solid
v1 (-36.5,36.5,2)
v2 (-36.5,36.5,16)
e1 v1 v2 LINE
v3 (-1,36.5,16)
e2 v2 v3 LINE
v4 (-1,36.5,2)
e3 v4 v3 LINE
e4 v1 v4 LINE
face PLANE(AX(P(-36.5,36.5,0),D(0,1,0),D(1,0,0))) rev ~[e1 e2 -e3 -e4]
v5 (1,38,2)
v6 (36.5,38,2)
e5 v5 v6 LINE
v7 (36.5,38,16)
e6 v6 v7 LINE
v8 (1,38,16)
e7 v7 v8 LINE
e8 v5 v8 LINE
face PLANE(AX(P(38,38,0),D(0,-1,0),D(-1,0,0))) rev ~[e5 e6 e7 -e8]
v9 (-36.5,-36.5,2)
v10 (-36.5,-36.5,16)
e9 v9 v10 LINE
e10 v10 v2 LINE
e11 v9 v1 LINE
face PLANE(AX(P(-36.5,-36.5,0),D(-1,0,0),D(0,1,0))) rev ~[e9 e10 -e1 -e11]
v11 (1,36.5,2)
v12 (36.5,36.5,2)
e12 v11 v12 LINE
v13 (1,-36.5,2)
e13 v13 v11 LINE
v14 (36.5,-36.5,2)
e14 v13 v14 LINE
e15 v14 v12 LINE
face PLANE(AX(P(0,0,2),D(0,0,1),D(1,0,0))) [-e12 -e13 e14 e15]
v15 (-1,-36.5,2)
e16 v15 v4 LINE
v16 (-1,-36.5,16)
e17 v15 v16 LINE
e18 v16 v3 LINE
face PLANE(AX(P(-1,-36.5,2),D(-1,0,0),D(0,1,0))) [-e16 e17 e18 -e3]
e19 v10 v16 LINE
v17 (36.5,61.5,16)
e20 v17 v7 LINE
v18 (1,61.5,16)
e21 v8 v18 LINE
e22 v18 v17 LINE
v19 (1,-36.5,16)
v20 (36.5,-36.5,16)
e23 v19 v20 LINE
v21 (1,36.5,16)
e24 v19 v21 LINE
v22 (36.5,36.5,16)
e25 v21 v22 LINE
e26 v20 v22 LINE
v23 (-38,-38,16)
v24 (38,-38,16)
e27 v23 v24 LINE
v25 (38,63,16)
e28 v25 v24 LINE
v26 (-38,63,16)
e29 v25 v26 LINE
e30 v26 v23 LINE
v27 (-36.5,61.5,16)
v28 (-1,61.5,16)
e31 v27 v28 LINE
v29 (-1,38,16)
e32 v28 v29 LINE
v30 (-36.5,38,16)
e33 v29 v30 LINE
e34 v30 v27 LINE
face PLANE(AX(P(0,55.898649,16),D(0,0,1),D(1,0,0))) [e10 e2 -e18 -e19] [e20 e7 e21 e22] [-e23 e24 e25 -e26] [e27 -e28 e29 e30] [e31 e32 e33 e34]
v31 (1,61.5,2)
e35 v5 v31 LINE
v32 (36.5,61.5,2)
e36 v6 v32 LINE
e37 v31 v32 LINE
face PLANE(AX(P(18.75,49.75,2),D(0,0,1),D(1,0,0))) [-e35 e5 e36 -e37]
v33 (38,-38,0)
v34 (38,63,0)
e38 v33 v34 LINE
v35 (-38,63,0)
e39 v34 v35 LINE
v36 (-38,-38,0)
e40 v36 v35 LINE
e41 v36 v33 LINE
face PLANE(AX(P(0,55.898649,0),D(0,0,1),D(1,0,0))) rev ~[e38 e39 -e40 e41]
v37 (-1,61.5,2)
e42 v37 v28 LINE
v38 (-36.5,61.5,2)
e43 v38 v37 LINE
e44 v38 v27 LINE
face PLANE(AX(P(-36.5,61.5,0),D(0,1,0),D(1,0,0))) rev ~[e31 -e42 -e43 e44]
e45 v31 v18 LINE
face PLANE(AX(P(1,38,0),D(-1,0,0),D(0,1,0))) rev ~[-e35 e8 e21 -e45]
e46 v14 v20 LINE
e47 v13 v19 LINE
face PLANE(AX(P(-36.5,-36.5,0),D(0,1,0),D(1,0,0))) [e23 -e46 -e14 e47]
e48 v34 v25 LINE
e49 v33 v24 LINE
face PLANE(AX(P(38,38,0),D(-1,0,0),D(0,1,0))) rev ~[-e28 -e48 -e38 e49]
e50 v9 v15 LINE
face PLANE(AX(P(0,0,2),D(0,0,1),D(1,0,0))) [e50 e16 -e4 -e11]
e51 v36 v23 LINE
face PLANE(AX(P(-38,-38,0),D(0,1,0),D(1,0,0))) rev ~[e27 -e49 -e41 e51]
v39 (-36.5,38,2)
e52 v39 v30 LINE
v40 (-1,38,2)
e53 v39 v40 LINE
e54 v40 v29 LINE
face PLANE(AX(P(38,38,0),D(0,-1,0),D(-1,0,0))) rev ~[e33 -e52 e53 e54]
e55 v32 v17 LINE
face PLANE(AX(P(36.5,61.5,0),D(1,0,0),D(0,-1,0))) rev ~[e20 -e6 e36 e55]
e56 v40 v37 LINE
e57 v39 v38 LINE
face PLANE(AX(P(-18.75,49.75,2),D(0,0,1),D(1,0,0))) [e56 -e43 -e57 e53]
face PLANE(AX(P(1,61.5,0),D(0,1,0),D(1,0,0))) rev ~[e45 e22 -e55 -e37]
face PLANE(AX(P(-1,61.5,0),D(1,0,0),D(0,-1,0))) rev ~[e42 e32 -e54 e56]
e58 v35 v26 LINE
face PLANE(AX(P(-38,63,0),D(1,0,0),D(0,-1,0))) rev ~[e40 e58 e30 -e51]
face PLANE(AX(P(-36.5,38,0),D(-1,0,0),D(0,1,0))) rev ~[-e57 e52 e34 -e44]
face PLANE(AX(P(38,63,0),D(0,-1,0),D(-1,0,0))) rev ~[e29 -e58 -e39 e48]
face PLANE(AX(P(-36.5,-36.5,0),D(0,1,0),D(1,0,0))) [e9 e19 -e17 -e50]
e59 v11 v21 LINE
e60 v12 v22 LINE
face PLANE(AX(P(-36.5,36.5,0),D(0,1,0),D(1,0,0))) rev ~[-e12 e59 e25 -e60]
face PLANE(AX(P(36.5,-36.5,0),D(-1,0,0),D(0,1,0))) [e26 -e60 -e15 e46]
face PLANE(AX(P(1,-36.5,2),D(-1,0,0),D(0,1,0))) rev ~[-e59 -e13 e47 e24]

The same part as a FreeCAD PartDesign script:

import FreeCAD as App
import Part
import Sketcher

V = App.Vector
Q = App.Units.Quantity


def add_polygon(sketch, points):
    """Adds a closed chain of lines whose ends are joined by coincident constraints."""
    first, n = sketch.GeometryCount, len(points)
    for a, b in zip(points, points[1:] + points[:1]):
        sketch.addGeometry(Part.LineSegment(App.Vector(*a, 0), App.Vector(*b, 0)), False)
    for i in range(n):
        sketch.addConstraint(Sketcher.Constraint("Coincident", first + i, 2, first + (i + 1) % n, 1))

doc = App.newDocument("Part")
params = doc.addObject("Spreadsheet::Sheet", "Params")
for row, (alias, value) in enumerate([
    ("sketch1_width", "76 mm"),
    ("sketch1_width2", "73 mm"),
    ("pad1_length", "16 mm"),
    ("sketch2_width", "76 mm"),
    ("pad2_length", "2 mm"),
    ("sketch3_width", "2 mm"),
    ("sketch3_height", "73 mm"),
    ("pad3_length", "14 mm"),
    ("sketch4_width", "35.5 mm"),
    ("sketch4_height", "23.5 mm"),
    ("pad4_length", "2 mm"),
    ("sketch5_width", "35.5 mm"),
    ("sketch5_height", "23.5 mm"),
    ("pad5_length", "2 mm"),
    ("sketch6_width", "76 mm"),
    ("sketch6_width2", "2 mm"),
    ("sketch6_height", "25 mm"),
    ("sketch6_width3", "1.5 mm"),
    ("sketch6_height2", "23.5 mm"),
    ("pad6_length", "16 mm"),
], start=1):
    params.set(f"A{row}", alias)
    params.set(f"B{row}", "=" + value)
    params.setAlias(f"B{row}", alias)

body = doc.addObject("PartDesign::Body", "Body")

sketch1 = body.newObject("Sketcher::SketchObject", "Sketch")
sketch1.AttachmentSupport = (doc.getObject("XY_Plane"), [""])
sketch1.MapMode = "FlatFace"
add_polygon(sketch1, [(-38, 38), (-38, -38), (38, -38), (38, 38)])
add_polygon(sketch1, [(36, -36), (-36, -36), (-36, 36), (36, 36)])
sketch1.addConstraint([
    Sketcher.Constraint("Vertical", 0),
    Sketcher.Constraint("Horizontal", 1),
    Sketcher.Constraint("Vertical", 2),
    Sketcher.Constraint("Horizontal", 3),
    Sketcher.Constraint("Horizontal", 4),
    Sketcher.Constraint("Vertical", 5),
    Sketcher.Constraint("Horizontal", 6),
    Sketcher.Constraint("Vertical", 7),
    Sketcher.Constraint("Symmetric", 0, 2, 2, 2, -1, 1),
    Sketcher.Constraint("Symmetric", 4, 2, 6, 2, -1, 1),
    Sketcher.Constraint("Equal", 3, 0),
    Sketcher.Constraint("Equal", 6, 5),
    Sketcher.Constraint("DistanceX", 1, 1, 1, 2, Q("76 mm")),
    Sketcher.Constraint("DistanceX", 4, 2, 4, 1, Q("73 mm")),
])
sketch1.setExpression("Constraints[20]", "Params.sketch1_width")
sketch1.setExpression("Constraints[21]", "Params.sketch1_width2")
pad1 = body.newObject("PartDesign::Pad", "Pad")
pad1.Profile = sketch1
pad1.setExpression("Length", "Params.pad1_length")

sketch2 = body.newObject("Sketcher::SketchObject", "Sketch001")
sketch2.AttachmentSupport = (doc.getObject("XY_Plane"), [""])
sketch2.MapMode = "FlatFace"
add_polygon(sketch2, [(-38, -38), (38, -38), (38, 38), (-38, 38)])
sketch2.addConstraint([
    Sketcher.Constraint("Horizontal", 0),
    Sketcher.Constraint("Vertical", 1),
    Sketcher.Constraint("Horizontal", 2),
    Sketcher.Constraint("Vertical", 3),
    Sketcher.Constraint("Symmetric", 0, 2, 2, 2, -1, 1),
    Sketcher.Constraint("Equal", 2, 1),
    Sketcher.Constraint("DistanceX", 0, 1, 0, 2, Q("76 mm")),
])
sketch2.setExpression("Constraints[10]", "Params.sketch2_width")
pad2 = body.newObject("PartDesign::Pad", "Pad001")
pad2.Profile = sketch2
pad2.setExpression("Length", "Params.pad2_length")

sketch3 = body.newObject("Sketcher::SketchObject", "Sketch002")
sketch3.AttachmentSupport = (doc.getObject("XY_Plane"), [""])
sketch3.MapMode = "FlatFace"
sketch3.AttachmentOffset = App.Placement(V(0, 0, 2), App.Rotation())
add_polygon(sketch3, [(-1, 36.5), (-1, -36.5), (1, -36.5), (1, 36.5)])
sketch3.addConstraint([
    Sketcher.Constraint("Vertical", 0),
    Sketcher.Constraint("Horizontal", 1),
    Sketcher.Constraint("Vertical", 2),
    Sketcher.Constraint("Horizontal", 3),
    Sketcher.Constraint("Symmetric", 0, 2, 2, 2, -1, 1),
    Sketcher.Constraint("DistanceX", 1, 1, 1, 2, Q("2 mm")),
    Sketcher.Constraint("DistanceY", 0, 2, 0, 1, Q("73 mm")),
])
sketch3.setExpression("Constraints[9]", "Params.sketch3_width")
sketch3.setExpression("Constraints[10]", "Params.sketch3_height")
pad3 = body.newObject("PartDesign::Pad", "Pad002")
pad3.Profile = sketch3
pad3.setExpression("Length", "Params.pad3_length")

sketch4 = body.newObject("Sketcher::SketchObject", "Sketch003")
sketch4.AttachmentSupport = (doc.getObject("XY_Plane"), [""])
sketch4.MapMode = "FlatFace"
add_polygon(sketch4, [(-36, 62), (-36, 38), (-1, 38), (-1, 62)])
sketch4.addConstraint([
    Sketcher.Constraint("Vertical", 0),
    Sketcher.Constraint("Horizontal", 1),
    Sketcher.Constraint("Vertical", 2),
    Sketcher.Constraint("Horizontal", 3),
    Sketcher.Constraint("DistanceX", 1, 1, 1, 2, Q("35.5 mm")),
    Sketcher.Constraint("DistanceY", 0, 2, 0, 1, Q("23.5 mm")),
    Sketcher.Constraint("DistanceY", -1, 1, 0, 2, Q("38 mm")),
    Sketcher.Constraint("DistanceX", 1, 2, -1, 1, Q("1 mm")),
])
sketch4.setExpression("Constraints[8]", "Params.sketch4_width")
sketch4.setExpression("Constraints[9]", "Params.sketch4_height")
pad4 = body.newObject("PartDesign::Pad", "Pad003")
pad4.Profile = sketch4
pad4.setExpression("Length", "Params.pad4_length")

sketch5 = body.newObject("Sketcher::SketchObject", "Sketch004")
sketch5.AttachmentSupport = (doc.getObject("XY_Plane"), [""])
sketch5.MapMode = "FlatFace"
add_polygon(sketch5, [(1, 62), (1, 38), (36, 38), (36, 62)])
sketch5.addConstraint([
    Sketcher.Constraint("Vertical", 0),
    Sketcher.Constraint("Horizontal", 1),
    Sketcher.Constraint("Vertical", 2),
    Sketcher.Constraint("Horizontal", 3),
    Sketcher.Constraint("DistanceX", 1, 1, 1, 2, Q("35.5 mm")),
    Sketcher.Constraint("DistanceY", 0, 2, 0, 1, Q("23.5 mm")),
    Sketcher.Constraint("DistanceX", -1, 1, 0, 2, Q("1 mm")),
    Sketcher.Constraint("DistanceY", -1, 1, 0, 2, Q("38 mm")),
])
sketch5.setExpression("Constraints[8]", "Params.sketch5_width")
sketch5.setExpression("Constraints[9]", "Params.sketch5_height")
pad5 = body.newObject("PartDesign::Pad", "Pad004")
pad5.Profile = sketch5
pad5.setExpression("Length", "Params.pad5_length")

sketch6 = body.newObject("Sketcher::SketchObject", "Sketch005")
sketch6.AttachmentSupport = (doc.getObject("XY_Plane"), [""])
sketch6.MapMode = "FlatFace"
add_polygon(sketch6, [(36.5, 38), (38, 38), (38, 63), (-38, 63), (-38, 38), (-36.5, 38), (-36.5, 61.5), (-1, 61.5), (-1, 38), (1, 38), (1, 61.5), (36.5, 61.5)])
sketch6.addConstraint([
    Sketcher.Constraint("Horizontal", 0),
    Sketcher.Constraint("Vertical", 1),
    Sketcher.Constraint("Horizontal", 2),
    Sketcher.Constraint("Vertical", 3),
    Sketcher.Constraint("Horizontal", 4),
    Sketcher.Constraint("Vertical", 5),
    Sketcher.Constraint("Horizontal", 6),
    Sketcher.Constraint("Vertical", 7),
    Sketcher.Constraint("Horizontal", 8),
    Sketcher.Constraint("Vertical", 9),
    Sketcher.Constraint("Horizontal", 10),
    Sketcher.Constraint("Vertical", 11),
    Sketcher.Constraint("Symmetric", 0, 2, 3, 2, -2),
    Sketcher.Constraint("Symmetric", 6, 2, 9, 2, -2),
    Sketcher.Constraint("Horizontal", 4, 2, 7, 2),
    Sketcher.Constraint("Equal", 0, 4),
    Sketcher.Constraint("DistanceX", 2, 2, 2, 1, Q("76 mm")),
    Sketcher.Constraint("DistanceX", 8, 1, 8, 2, Q("2 mm")),
    Sketcher.Constraint("DistanceY", 1, 1, 1, 2, Q("25 mm")),
    Sketcher.Constraint("DistanceX", 0, 1, 0, 2, Q("1.5 mm")),
    Sketcher.Constraint("DistanceY", 5, 1, 5, 2, Q("23.5 mm")),
    Sketcher.Constraint("DistanceY", -1, 1, 0, 2, Q("38 mm")),
])
sketch6.setExpression("Constraints[28]", "Params.sketch6_width")
sketch6.setExpression("Constraints[29]", "Params.sketch6_width2")
sketch6.setExpression("Constraints[30]", "Params.sketch6_height")
sketch6.setExpression("Constraints[31]", "Params.sketch6_width3")
sketch6.setExpression("Constraints[32]", "Params.sketch6_height2")
pad6 = body.newObject("PartDesign::Pad", "Pad005")
pad6.Profile = sketch6
pad6.setExpression("Length", "Params.pad6_length")

doc.recompute()
